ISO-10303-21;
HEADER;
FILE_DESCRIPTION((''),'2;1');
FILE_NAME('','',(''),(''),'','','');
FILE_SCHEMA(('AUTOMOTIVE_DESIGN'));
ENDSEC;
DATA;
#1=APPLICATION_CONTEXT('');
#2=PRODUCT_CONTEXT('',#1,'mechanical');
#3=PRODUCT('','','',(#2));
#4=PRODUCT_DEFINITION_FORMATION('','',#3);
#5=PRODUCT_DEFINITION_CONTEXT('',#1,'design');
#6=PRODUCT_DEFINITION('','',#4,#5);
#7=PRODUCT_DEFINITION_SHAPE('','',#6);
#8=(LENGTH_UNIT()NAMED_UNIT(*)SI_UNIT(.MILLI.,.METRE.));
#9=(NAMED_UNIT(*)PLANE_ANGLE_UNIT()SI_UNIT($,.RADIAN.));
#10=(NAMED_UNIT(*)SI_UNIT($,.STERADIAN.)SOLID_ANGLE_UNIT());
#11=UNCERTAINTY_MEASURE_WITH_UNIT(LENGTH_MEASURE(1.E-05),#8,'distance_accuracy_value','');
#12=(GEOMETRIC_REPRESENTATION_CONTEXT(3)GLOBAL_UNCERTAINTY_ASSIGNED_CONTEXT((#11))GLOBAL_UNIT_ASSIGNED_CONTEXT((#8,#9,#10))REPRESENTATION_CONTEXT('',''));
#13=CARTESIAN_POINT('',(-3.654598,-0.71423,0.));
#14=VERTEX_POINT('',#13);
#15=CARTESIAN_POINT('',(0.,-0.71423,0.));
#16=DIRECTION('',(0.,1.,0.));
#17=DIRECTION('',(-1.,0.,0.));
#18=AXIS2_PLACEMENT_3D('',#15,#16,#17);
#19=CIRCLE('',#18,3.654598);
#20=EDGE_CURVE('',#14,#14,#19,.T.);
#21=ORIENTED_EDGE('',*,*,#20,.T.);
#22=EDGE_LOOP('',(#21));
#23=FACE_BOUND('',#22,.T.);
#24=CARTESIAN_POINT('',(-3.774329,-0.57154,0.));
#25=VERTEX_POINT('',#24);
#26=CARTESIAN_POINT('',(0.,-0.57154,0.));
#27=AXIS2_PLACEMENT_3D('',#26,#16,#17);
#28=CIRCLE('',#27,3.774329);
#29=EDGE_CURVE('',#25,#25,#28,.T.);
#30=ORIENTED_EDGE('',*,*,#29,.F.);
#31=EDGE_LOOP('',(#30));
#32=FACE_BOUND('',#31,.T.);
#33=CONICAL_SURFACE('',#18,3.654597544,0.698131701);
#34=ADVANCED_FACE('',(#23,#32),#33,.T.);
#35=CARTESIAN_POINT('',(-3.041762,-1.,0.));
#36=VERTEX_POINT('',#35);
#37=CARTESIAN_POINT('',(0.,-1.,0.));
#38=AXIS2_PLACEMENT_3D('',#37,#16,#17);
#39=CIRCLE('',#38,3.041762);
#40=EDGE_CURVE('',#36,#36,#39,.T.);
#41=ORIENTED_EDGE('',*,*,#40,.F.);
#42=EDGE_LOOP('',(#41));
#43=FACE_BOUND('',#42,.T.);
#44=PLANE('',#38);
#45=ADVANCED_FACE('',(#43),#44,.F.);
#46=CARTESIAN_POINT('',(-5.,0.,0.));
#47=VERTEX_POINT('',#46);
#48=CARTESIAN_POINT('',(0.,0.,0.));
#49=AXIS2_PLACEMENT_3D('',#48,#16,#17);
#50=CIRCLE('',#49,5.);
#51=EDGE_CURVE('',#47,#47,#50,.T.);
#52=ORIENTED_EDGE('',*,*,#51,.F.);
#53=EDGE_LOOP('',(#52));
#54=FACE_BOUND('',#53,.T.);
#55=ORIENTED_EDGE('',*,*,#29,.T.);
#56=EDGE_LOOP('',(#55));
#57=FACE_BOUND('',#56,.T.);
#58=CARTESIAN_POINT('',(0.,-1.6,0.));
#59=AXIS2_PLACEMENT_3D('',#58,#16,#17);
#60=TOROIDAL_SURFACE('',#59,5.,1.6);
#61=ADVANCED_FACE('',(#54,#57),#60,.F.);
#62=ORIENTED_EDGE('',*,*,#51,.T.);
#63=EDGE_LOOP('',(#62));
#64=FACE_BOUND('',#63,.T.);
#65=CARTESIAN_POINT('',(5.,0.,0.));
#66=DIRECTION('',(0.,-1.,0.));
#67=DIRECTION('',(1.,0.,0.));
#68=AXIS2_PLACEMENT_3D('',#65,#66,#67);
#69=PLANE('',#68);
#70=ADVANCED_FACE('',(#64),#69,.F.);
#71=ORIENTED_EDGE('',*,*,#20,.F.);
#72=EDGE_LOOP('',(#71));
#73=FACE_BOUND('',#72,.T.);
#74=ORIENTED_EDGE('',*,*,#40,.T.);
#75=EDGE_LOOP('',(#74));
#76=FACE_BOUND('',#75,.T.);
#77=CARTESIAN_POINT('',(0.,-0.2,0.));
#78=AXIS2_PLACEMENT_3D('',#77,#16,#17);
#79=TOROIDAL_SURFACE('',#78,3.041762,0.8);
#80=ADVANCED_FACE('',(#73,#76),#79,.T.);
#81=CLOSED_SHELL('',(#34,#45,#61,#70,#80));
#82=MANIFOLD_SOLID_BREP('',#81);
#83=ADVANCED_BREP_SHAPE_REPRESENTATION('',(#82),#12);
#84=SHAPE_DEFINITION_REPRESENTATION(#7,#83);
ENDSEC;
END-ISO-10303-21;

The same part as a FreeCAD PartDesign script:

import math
import FreeCAD as App
import Part
import Sketcher
from FreeCAD import Vector
Q = App.Units.Quantity

doc = App.newDocument("Part")
body = doc.addObject("PartDesign::Body", "Body")

# Sketch on XY plane
sketch1 = body.newObject("Sketcher::SketchObject", "Sketch")
sketch1.AttachmentSupport = (doc.getObject("XY_Plane"), [""])
sketch1.MapMode = "FlatFace"
sketch1.addGeometry([
    Part.LineSegment(Vector(0, 0, 0), Vector(0, -1, 0)),  # 0
    Part.LineSegment(Vector(0, -1, 0), Vector(3.04, -1, 0)),  # 1
    Part.ArcOfCircle(Part.Circle(Vector(3.04, -0.2, 0), Vector(0, 0, 1), 0.8), math.radians(-90), math.radians(-40)),  # 2
    Part.LineSegment(Vector(3.65, -0.71, 0), Vector(3.77, -0.57, 0)),  # 3
    Part.ArcOfCircle(Part.Circle(Vector(5, -1.6, 0), Vector(0, 0, 1), 1.6), math.radians(90), math.radians(140)),  # 4
    Part.LineSegment(Vector(5, 0, 0), Vector(0, 0, 0)),  # 5
], False)
sketch1.addConstraint([
    Sketcher.Constraint("Coincident", 0, 2, 1, 1),
    Sketcher.Constraint("Tangent", 1, 2, 2, 1),
    Sketcher.Constraint("Tangent", 2, 2, 3, 1),
    Sketcher.Constraint("Tangent", 3, 2, 4, 2),
    Sketcher.Constraint("Tangent", 4, 1, 5, 1),
    Sketcher.Constraint("Coincident", 5, 2, 0, 1),
    Sketcher.Constraint("Vertical", 0),
    Sketcher.Constraint("Horizontal", 1),
    Sketcher.Constraint("Horizontal", 5),
    Sketcher.Constraint("Coincident", 5, 2, -1, 1),
    Sketcher.Constraint("Radius", 2, 0.8),
    Sketcher.Constraint("Radius", 4, 1.6),
    Sketcher.Constraint("DistanceX", 5, 2, 5, 1, 5.0),
    Sketcher.Constraint("DistanceY", 0, 2, 0, 1, 1.0),
    Sketcher.Constraint("Angle", 3, Q("50 deg")),
])
revolution = body.newObject("PartDesign::Revolution", "Revolution")
revolution.Profile = sketch1
revolution.ReferenceAxis = (sketch1, ["V_Axis"])
revolution.Angle = 360

doc.recompute()
